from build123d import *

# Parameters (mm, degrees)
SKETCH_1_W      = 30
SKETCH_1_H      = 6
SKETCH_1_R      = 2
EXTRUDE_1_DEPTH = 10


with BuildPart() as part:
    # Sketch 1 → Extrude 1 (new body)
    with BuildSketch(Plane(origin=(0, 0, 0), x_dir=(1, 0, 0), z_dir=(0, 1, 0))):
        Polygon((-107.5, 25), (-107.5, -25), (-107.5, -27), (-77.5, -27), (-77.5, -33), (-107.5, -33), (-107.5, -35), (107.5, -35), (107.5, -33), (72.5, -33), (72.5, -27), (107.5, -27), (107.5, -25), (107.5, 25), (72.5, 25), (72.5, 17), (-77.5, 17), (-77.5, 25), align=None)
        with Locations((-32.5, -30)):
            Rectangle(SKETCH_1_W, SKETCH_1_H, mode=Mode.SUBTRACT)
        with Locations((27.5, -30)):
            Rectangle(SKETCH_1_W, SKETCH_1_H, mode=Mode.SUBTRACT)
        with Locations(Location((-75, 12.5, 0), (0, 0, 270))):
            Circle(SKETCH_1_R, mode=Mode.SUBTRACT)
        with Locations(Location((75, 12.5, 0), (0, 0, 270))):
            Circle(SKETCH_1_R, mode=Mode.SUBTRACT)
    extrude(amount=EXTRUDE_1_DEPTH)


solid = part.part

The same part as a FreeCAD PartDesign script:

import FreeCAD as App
import Part
import Sketcher

doc = App.newDocument("Part")
body = doc.addObject("PartDesign::Body", "Body")

sketch1 = body.newObject("Sketcher::SketchObject", "Sketch")
sketch1.AttachmentSupport = (doc.getObject("XZ_Plane"), [""])
sketch1.MapMode = "FlatFace"
sketch1.addGeometry(Part.LineSegment(App.Vector(-107.5, -25, 0), App.Vector(-107.5, 27, 0)), False)
sketch1.addGeometry(Part.LineSegment(App.Vector(-107.5, 27, 0), App.Vector(-77.5, 27, 0)), False)
sketch1.addGeometry(Part.LineSegment(App.Vector(-77.5, 27, 0), App.Vector(-77.5, 33, 0)), False)
sketch1.addGeometry(Part.LineSegment(App.Vector(-77.5, 33, 0), App.Vector(-107.5, 33, 0)), False)
sketch1.addGeometry(Part.LineSegment(App.Vector(-107.5, 33, 0), App.Vector(-107.5, 35, 0)), False)
sketch1.addGeometry(Part.LineSegment(App.Vector(-107.5, 35, 0), App.Vector(107.5, 35, 0)), False)
sketch1.addGeometry(Part.LineSegment(App.Vector(107.5, 35, 0), App.Vector(107.5, 33, 0)), False)
sketch1.addGeometry(Part.LineSegment(App.Vector(107.5, 33, 0), App.Vector(72.5, 33, 0)), False)
sketch1.addGeometry(Part.LineSegment(App.Vector(72.5, 33, 0), App.Vector(72.5, 27, 0)), False)
sketch1.addGeometry(Part.LineSegment(App.Vector(72.5, 27, 0), App.Vector(107.5, 27, 0)), False)
sketch1.addGeometry(Part.LineSegment(App.Vector(107.5, 27, 0), App.Vector(107.5, -25, 0)), False)
sketch1.addGeometry(Part.LineSegment(App.Vector(107.5, -25, 0), App.Vector(72.5, -25, 0)), False)
sketch1.addGeometry(Part.LineSegment(App.Vector(72.5, -25, 0), App.Vector(72.5, -17, 0)), False)
sketch1.addGeometry(Part.LineSegment(App.Vector(72.5, -17, 0), App.Vector(-77.5, -17, 0)), False)
sketch1.addGeometry(Part.LineSegment(App.Vector(-77.5, -17, 0), App.Vector(-77.5, -25, 0)), False)
sketch1.addGeometry(Part.LineSegment(App.Vector(-77.5, -25, 0), App.Vector(-107.5, -25, 0)), False)
sketch1.addGeometry(Part.LineSegment(App.Vector(-17.5, 33, 0), App.Vector(-47.5, 33, 0)), False)
sketch1.addGeometry(Part.LineSegment(App.Vector(-47.5, 33, 0), App.Vector(-47.5, 27, 0)), False)
sketch1.addGeometry(Part.LineSegment(App.Vector(-47.5, 27, 0), App.Vector(-17.5, 27, 0)), False)
sketch1.addGeometry(Part.LineSegment(App.Vector(-17.5, 27, 0), App.Vector(-17.5, 33, 0)), False)
sketch1.addGeometry(Part.LineSegment(App.Vector(42.5, 33, 0), App.Vector(12.5, 33, 0)), False)
sketch1.addGeometry(Part.LineSegment(App.Vector(12.5, 33, 0), App.Vector(12.5, 27, 0)), False)
sketch1.addGeometry(Part.LineSegment(App.Vector(12.5, 27, 0), App.Vector(42.5, 27, 0)), False)
sketch1.addGeometry(Part.LineSegment(App.Vector(42.5, 27, 0), App.Vector(42.5, 33, 0)), False)
sketch1.addGeometry(Part.Circle(App.Vector(-75, -12.5, 0), App.Vector(0, 0, 1), 2), False)
sketch1.addGeometry(Part.Circle(App.Vector(75, -12.5, 0), App.Vector(0, 0, 1), 2), False)
sketch1.addConstraint(Sketcher.Constraint("Coincident", 0, 2, 1, 1))
sketch1.addConstraint(Sketcher.Constraint("Coincident", 1, 2, 2, 1))
sketch1.addConstraint(Sketcher.Constraint("Coincident", 2, 2, 3, 1))
sketch1.addConstraint(Sketcher.Constraint("Coincident", 3, 2, 4, 1))
sketch1.addConstraint(Sketcher.Constraint("Coincident", 4, 2, 5, 1))
sketch1.addConstraint(Sketcher.Constraint("Coincident", 5, 2, 6, 1))
sketch1.addConstraint(Sketcher.Constraint("Coincident", 6, 2, 7, 1))
sketch1.addConstraint(Sketcher.Constraint("Coincident", 7, 2, 8, 1))
sketch1.addConstraint(Sketcher.Constraint("Coincident", 8, 2, 9, 1))
sketch1.addConstraint(Sketcher.Constraint("Coincident", 9, 2, 10, 1))
sketch1.addConstraint(Sketcher.Constraint("Coincident", 10, 2, 11, 1))
sketch1.addConstraint(Sketcher.Constraint("Coincident", 11, 2, 12, 1))
sketch1.addConstraint(Sketcher.Constraint("Coincident", 12, 2, 13, 1))
sketch1.addConstraint(Sketcher.Constraint("Coincident", 13, 2, 14, 1))
sketch1.addConstraint(Sketcher.Constraint("Coincident", 14, 2, 15, 1))
sketch1.addConstraint(Sketcher.Constraint("Coincident", 15, 2, 0, 1))
sketch1.addConstraint(Sketcher.Constraint("Coincident", 16, 2, 17, 1))
sketch1.addConstraint(Sketcher.Constraint("Coincident", 17, 2, 18, 1))
sketch1.addConstraint(Sketcher.Constraint("Coincident", 18, 2, 19, 1))
sketch1.addConstraint(Sketcher.Constraint("Coincident", 19, 2, 16, 1))
sketch1.addConstraint(Sketcher.Constraint("Coincident", 20, 2, 21, 1))
sketch1.addConstraint(Sketcher.Constraint("Coincident", 21, 2, 22, 1))
sketch1.addConstraint(Sketcher.Constraint("Coincident", 22, 2, 23, 1))
sketch1.addConstraint(Sketcher.Constraint("Coincident", 23, 2, 20, 1))
sketch1.addConstraint(Sketcher.Constraint("Vertical", 0))
sketch1.addConstraint(Sketcher.Constraint("Horizontal", 1))
sketch1.addConstraint(Sketcher.Constraint("Vertical", 2))
sketch1.addConstraint(Sketcher.Constraint("Horizontal", 3))
sketch1.addConstraint(Sketcher.Constraint("Vertical", 4))
sketch1.addConstraint(Sketcher.Constraint("Horizontal", 5))
sketch1.addConstraint(Sketcher.Constraint("Vertical", 6))
sketch1.addConstraint(Sketcher.Constraint("Horizontal", 7))
sketch1.addConstraint(Sketcher.Constraint("Vertical", 8))
sketch1.addConstraint(Sketcher.Constraint("Horizontal", 9))
sketch1.addConstraint(Sketcher.Constraint("Vertical", 10))
sketch1.addConstraint(Sketcher.Constraint("Horizontal", 11))
sketch1.addConstraint(Sketcher.Constraint("Vertical", 12))
sketch1.addConstraint(Sketcher.Constraint("Horizontal", 13))
sketch1.addConstraint(Sketcher.Constraint("Vertical", 14))
sketch1.addConstraint(Sketcher.Constraint("Horizontal", 15))
sketch1.addConstraint(Sketcher.Constraint("Horizontal", 16))
sketch1.addConstraint(Sketcher.Constraint("Vertical", 17))
sketch1.addConstraint(Sketcher.Constraint("Horizontal", 18))
sketch1.addConstraint(Sketcher.Constraint("Vertical", 19))
sketch1.addConstraint(Sketcher.Constraint("Horizontal", 20))
sketch1.addConstraint(Sketcher.Constraint("Vertical", 21))
sketch1.addConstraint(Sketcher.Constraint("Horizontal", 22))
sketch1.addConstraint(Sketcher.Constraint("Vertical", 23))
sketch1.addConstraint(Sketcher.Constraint("Equal", 24, 25))
sketch1.addConstraint(Sketcher.Constraint("Symmetric", 24, 3, 25, 3, -2))
sketch1.addConstraint(Sketcher.Constraint("Symmetric", 3, 2, 6, 2, -2))
sketch1.addConstraint(Sketcher.Constraint("Symmetric", 0, 2, 9, 2, -2))
sketch1.addConstraint(Sketcher.Constraint("Horizontal", 11, 2, 14, 2))
sketch1.addConstraint(Sketcher.Constraint("Horizontal", 7, 2, 16, 2))
sketch1.addConstraint(Sketcher.Constraint("Horizontal", 9, 2, 17, 2))
sketch1.addConstraint(Sketcher.Constraint("Horizontal", 19, 2, 20, 2))
sketch1.addConstraint(Sketcher.Constraint("Horizontal", 18, 2, 21, 2))
sketch1.addConstraint(Sketcher.Constraint("Vertical", 0, 2, 3, 2))
sketch1.addConstraint(Sketcher.Constraint("Vertical", 8, 2, 11, 2))
sketch1.addConstraint(Sketcher.Constraint("Vertical", 2, 2, 13, 2))
sketch1.addConstraint(Sketcher.Constraint("Equal", 15, 16))
sketch1.addConstraint(Sketcher.Constraint("Equal", 18, 20))
sketch1.addConstraint(Sketcher.Constraint("Diameter", 24, 4.0))
sketch1.addConstraint(Sketcher.Constraint("DistanceX", 1, 1, 1, 2, 30.0))
sketch1.addConstraint(Sketcher.Constraint("DistanceX", 5, 1, 5, 2, 215.0))
sketch1.addConstraint(Sketcher.Constraint("DistanceX", 7, 2, 7, 1, 35.0))
sketch1.addConstraint(Sketcher.Constraint("DistanceY", 0, 1, 0, 2, 52.0))
sketch1.addConstraint(Sketcher.Constraint("DistanceY", 2, 1, 2, 2, 6.0))
sketch1.addConstraint(Sketcher.Constraint("DistanceY", 4, 1, 4, 2, 2.0))
sketch1.addConstraint(Sketcher.Constraint("DistanceY", 12, 1, 12, 2, 8.0))
sketch1.addConstraint(Sketcher.Constraint("DistanceX", 24, 3, -1, 1, 75.0))
sketch1.addConstraint(Sketcher.Constraint("DistanceY", -1, 1, 0, 2, 27.0))
sketch1.addConstraint(Sketcher.Constraint("DistanceX", 2, 2, 16, 2, 30.0))
sketch1.addConstraint(Sketcher.Constraint("DistanceX", 19, 2, 20, 2, 30.0))
sketch1.addConstraint(Sketcher.Constraint("DistanceY", 24, 3, -1, 1, 12.5))
pad1 = body.newObject("PartDesign::Pad", "Pad")
pad1.Profile = sketch1
pad1.Length = 10
pad1.Reversed = True

doc.recompute()
